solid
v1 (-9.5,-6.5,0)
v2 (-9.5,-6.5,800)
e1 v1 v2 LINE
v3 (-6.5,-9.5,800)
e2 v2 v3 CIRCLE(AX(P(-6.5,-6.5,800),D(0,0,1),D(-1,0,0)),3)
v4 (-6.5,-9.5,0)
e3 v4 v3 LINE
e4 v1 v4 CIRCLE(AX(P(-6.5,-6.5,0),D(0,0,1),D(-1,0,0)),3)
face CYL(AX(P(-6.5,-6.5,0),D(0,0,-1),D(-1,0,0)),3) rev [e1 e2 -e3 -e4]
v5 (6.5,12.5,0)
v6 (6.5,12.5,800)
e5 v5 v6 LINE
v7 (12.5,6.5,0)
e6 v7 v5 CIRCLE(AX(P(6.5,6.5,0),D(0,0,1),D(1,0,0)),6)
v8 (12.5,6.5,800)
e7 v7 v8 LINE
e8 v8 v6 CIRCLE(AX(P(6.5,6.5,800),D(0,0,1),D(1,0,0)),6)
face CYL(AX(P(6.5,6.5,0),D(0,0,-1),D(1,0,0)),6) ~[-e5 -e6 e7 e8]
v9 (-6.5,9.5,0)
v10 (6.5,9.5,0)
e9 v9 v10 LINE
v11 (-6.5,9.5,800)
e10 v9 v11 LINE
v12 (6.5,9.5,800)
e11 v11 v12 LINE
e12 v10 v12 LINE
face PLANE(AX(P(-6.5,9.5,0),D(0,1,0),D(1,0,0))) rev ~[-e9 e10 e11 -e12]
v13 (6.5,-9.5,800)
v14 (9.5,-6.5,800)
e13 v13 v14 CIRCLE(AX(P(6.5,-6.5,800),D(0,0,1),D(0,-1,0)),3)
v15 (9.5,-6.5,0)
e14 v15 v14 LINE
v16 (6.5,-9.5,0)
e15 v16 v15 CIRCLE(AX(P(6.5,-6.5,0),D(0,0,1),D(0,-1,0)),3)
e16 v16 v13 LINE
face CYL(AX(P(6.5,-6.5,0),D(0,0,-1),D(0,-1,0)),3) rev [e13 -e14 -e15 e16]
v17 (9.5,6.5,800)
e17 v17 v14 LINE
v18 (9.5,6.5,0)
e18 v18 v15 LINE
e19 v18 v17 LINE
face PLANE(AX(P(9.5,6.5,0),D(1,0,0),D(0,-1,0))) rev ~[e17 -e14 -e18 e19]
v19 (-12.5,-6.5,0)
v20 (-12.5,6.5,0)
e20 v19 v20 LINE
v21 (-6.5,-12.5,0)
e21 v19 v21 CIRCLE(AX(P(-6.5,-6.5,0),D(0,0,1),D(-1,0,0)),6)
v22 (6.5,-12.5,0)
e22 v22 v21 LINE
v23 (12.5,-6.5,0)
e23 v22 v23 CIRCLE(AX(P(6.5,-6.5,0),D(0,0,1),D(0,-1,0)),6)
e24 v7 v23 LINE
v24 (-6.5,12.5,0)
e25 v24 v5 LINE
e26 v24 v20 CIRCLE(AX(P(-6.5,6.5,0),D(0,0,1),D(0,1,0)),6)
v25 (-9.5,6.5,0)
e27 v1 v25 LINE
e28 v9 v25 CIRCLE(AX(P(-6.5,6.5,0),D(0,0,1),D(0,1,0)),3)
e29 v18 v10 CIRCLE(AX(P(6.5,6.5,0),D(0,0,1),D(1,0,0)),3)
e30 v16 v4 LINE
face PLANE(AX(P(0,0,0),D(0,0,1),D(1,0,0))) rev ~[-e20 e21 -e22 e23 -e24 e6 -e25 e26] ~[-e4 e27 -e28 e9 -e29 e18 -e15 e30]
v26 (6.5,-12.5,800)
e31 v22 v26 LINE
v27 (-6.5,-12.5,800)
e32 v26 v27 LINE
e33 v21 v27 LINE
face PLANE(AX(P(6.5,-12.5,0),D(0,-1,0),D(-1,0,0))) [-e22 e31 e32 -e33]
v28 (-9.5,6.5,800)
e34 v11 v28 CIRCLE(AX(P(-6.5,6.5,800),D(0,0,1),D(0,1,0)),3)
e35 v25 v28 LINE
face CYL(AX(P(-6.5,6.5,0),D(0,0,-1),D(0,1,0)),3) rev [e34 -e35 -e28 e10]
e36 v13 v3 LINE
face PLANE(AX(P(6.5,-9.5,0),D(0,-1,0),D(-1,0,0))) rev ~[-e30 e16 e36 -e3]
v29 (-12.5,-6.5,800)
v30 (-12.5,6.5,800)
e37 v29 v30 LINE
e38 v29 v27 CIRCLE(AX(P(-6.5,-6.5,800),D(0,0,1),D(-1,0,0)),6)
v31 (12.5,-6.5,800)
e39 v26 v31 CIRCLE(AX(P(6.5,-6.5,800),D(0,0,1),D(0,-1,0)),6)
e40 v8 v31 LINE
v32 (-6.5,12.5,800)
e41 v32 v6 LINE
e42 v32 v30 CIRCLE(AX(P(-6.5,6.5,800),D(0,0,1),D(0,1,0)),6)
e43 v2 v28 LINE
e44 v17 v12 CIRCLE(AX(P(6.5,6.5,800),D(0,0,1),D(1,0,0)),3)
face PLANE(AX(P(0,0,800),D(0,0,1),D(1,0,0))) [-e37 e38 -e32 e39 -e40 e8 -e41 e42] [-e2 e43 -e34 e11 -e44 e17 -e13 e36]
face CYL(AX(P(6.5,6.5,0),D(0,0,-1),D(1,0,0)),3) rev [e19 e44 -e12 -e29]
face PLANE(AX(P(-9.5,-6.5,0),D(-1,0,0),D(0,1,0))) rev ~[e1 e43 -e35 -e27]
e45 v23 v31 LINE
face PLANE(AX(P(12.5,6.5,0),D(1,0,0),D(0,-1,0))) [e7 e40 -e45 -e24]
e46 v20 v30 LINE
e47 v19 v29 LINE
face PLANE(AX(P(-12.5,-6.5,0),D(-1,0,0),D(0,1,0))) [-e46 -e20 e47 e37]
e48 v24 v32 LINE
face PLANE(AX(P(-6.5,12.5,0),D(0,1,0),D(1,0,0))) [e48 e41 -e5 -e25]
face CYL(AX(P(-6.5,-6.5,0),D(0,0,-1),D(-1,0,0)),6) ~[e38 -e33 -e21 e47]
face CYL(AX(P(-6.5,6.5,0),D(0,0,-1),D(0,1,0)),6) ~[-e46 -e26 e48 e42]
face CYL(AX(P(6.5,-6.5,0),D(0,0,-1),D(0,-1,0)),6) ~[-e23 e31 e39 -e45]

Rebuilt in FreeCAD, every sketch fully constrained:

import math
import FreeCAD as App
import Part
import Sketcher

V = App.Vector
Q = App.Units.Quantity

doc = App.newDocument("Part")
body = doc.addObject("PartDesign::Body", "Body")

# Sketch on XY plane
sketch1 = body.newObject("Sketcher::SketchObject", "Sketch")
sketch1.AttachmentSupport = (doc.getObject("XY_Plane"), [""])
sketch1.MapMode = "FlatFace"
sketch1.addGeometry(Part.LineSegment(V(-12.5, 6.5, 0), V(-12.5, -6.5, 0)), False)
sketch1.addGeometry(Part.ArcOfCircle(Part.Circle(V(-6.5, -6.5, 0), V(0, 0, 1), 6), math.radians(180), math.radians(270)), False)
sketch1.addGeometry(Part.LineSegment(V(-6.5, -12.5, 0), V(6.5, -12.5, 0)), False)
sketch1.addGeometry(Part.ArcOfCircle(Part.Circle(V(6.5, -6.5, 0), V(0, 0, 1), 6), math.radians(-90), math.radians(0)), False)
sketch1.addGeometry(Part.LineSegment(V(12.5, -6.5, 0), V(12.5, 6.5, 0)), False)
sketch1.addGeometry(Part.ArcOfCircle(Part.Circle(V(6.5, 6.5, 0), V(0, 0, 1), 6), math.radians(0), math.radians(90)), False)
sketch1.addGeometry(Part.LineSegment(V(6.5, 12.5, 0), V(-6.5, 12.5, 0)), False)
sketch1.addGeometry(Part.ArcOfCircle(Part.Circle(V(-6.5, 6.5, 0), V(0, 0, 1), 6), math.radians(90), math.radians(180)), False)
sketch1.addGeometry(Part.ArcOfCircle(Part.Circle(V(-6.5, 6.5, 0), V(0, 0, 1), 3), math.radians(90), math.radians(180)), False)
sketch1.addGeometry(Part.LineSegment(V(-6.5, 9.5, 0), V(6.5, 9.5, 0)), False)
sketch1.addGeometry(Part.ArcOfCircle(Part.Circle(V(6.5, 6.5, 0), V(0, 0, 1), 3), math.radians(0), math.radians(90)), False)
sketch1.addGeometry(Part.LineSegment(V(9.5, 6.5, 0), V(9.5, -6.5, 0)), False)
sketch1.addGeometry(Part.ArcOfCircle(Part.Circle(V(6.5, -6.5, 0), V(0, 0, 1), 3), math.radians(-90), math.radians(0)), False)
sketch1.addGeometry(Part.LineSegment(V(6.5, -9.5, 0), V(-6.5, -9.5, 0)), False)
sketch1.addGeometry(Part.ArcOfCircle(Part.Circle(V(-6.5, -6.5, 0), V(0, 0, 1), 3), math.radians(180), math.radians(270)), False)
sketch1.addGeometry(Part.LineSegment(V(-9.5, -6.5, 0), V(-9.5, 6.5, 0)), False)
sketch1.addConstraint(Sketcher.Constraint("Tangent", 0, 2, 1, 1))
sketch1.addConstraint(Sketcher.Constraint("Tangent", 1, 2, 2, 1))
sketch1.addConstraint(Sketcher.Constraint("Tangent", 2, 2, 3, 1))
sketch1.addConstraint(Sketcher.Constraint("Tangent", 3, 2, 4, 1))
sketch1.addConstraint(Sketcher.Constraint("Tangent", 4, 2, 5, 1))
sketch1.addConstraint(Sketcher.Constraint("Tangent", 5, 2, 6, 1))
sketch1.addConstraint(Sketcher.Constraint("Tangent", 6, 2, 7, 1))
sketch1.addConstraint(Sketcher.Constraint("Tangent", 7, 2, 0, 1))
sketch1.addConstraint(Sketcher.Constraint("Tangent", 8, 1, 9, 1))
sketch1.addConstraint(Sketcher.Constraint("Tangent", 9, 2, 10, 2))
sketch1.addConstraint(Sketcher.Constraint("Tangent", 10, 1, 11, 1))
sketch1.addConstraint(Sketcher.Constraint("Tangent", 11, 2, 12, 2))
sketch1.addConstraint(Sketcher.Constraint("Tangent", 12, 1, 13, 1))
sketch1.addConstraint(Sketcher.Constraint("Tangent", 13, 2, 14, 2))
sketch1.addConstraint(Sketcher.Constraint("Tangent", 14, 1, 15, 1))
sketch1.addConstraint(Sketcher.Constraint("Tangent", 15, 2, 8, 2))
sketch1.addConstraint(Sketcher.Constraint("Vertical", 0))
sketch1.addConstraint(Sketcher.Constraint("Horizontal", 2))
sketch1.addConstraint(Sketcher.Constraint("Vertical", 4))
sketch1.addConstraint(Sketcher.Constraint("Horizontal", 6))
sketch1.addConstraint(Sketcher.Constraint("Horizontal", 9))
sketch1.addConstraint(Sketcher.Constraint("Vertical", 11))
sketch1.addConstraint(Sketcher.Constraint("Horizontal", 13))
sketch1.addConstraint(Sketcher.Constraint("Vertical", 15))
sketch1.addConstraint(Sketcher.Constraint("Coincident", 8, 3, 7, 3))
sketch1.addConstraint(Sketcher.Constraint("Coincident", 10, 3, 5, 3))
sketch1.addConstraint(Sketcher.Constraint("Coincident", 12, 3, 3, 3))
sketch1.addConstraint(Sketcher.Constraint("Equal", 1, 3))
sketch1.addConstraint(Sketcher.Constraint("Equal", 3, 5))
sketch1.addConstraint(Sketcher.Constraint("Equal", 5, 7))
sketch1.addConstraint(Sketcher.Constraint("Equal", 12, 14))
sketch1.addConstraint(Sketcher.Constraint("Symmetric", 1, 3, 5, 3, -1, 1))
sketch1.addConstraint(Sketcher.Constraint("Equal", 13, 0))
sketch1.addConstraint(Sketcher.Constraint("Radius", 1, Q("6 mm")))
sketch1.addConstraint(Sketcher.Constraint("Radius", 8, Q("3 mm")))
sketch1.addConstraint(Sketcher.Constraint("DistanceX", 0, 2, -1, 1, Q("12.5 mm")))
pad1 = body.newObject("PartDesign::Pad", "Pad")
pad1.Profile = sketch1
pad1.Length = 800

doc.recompute()
